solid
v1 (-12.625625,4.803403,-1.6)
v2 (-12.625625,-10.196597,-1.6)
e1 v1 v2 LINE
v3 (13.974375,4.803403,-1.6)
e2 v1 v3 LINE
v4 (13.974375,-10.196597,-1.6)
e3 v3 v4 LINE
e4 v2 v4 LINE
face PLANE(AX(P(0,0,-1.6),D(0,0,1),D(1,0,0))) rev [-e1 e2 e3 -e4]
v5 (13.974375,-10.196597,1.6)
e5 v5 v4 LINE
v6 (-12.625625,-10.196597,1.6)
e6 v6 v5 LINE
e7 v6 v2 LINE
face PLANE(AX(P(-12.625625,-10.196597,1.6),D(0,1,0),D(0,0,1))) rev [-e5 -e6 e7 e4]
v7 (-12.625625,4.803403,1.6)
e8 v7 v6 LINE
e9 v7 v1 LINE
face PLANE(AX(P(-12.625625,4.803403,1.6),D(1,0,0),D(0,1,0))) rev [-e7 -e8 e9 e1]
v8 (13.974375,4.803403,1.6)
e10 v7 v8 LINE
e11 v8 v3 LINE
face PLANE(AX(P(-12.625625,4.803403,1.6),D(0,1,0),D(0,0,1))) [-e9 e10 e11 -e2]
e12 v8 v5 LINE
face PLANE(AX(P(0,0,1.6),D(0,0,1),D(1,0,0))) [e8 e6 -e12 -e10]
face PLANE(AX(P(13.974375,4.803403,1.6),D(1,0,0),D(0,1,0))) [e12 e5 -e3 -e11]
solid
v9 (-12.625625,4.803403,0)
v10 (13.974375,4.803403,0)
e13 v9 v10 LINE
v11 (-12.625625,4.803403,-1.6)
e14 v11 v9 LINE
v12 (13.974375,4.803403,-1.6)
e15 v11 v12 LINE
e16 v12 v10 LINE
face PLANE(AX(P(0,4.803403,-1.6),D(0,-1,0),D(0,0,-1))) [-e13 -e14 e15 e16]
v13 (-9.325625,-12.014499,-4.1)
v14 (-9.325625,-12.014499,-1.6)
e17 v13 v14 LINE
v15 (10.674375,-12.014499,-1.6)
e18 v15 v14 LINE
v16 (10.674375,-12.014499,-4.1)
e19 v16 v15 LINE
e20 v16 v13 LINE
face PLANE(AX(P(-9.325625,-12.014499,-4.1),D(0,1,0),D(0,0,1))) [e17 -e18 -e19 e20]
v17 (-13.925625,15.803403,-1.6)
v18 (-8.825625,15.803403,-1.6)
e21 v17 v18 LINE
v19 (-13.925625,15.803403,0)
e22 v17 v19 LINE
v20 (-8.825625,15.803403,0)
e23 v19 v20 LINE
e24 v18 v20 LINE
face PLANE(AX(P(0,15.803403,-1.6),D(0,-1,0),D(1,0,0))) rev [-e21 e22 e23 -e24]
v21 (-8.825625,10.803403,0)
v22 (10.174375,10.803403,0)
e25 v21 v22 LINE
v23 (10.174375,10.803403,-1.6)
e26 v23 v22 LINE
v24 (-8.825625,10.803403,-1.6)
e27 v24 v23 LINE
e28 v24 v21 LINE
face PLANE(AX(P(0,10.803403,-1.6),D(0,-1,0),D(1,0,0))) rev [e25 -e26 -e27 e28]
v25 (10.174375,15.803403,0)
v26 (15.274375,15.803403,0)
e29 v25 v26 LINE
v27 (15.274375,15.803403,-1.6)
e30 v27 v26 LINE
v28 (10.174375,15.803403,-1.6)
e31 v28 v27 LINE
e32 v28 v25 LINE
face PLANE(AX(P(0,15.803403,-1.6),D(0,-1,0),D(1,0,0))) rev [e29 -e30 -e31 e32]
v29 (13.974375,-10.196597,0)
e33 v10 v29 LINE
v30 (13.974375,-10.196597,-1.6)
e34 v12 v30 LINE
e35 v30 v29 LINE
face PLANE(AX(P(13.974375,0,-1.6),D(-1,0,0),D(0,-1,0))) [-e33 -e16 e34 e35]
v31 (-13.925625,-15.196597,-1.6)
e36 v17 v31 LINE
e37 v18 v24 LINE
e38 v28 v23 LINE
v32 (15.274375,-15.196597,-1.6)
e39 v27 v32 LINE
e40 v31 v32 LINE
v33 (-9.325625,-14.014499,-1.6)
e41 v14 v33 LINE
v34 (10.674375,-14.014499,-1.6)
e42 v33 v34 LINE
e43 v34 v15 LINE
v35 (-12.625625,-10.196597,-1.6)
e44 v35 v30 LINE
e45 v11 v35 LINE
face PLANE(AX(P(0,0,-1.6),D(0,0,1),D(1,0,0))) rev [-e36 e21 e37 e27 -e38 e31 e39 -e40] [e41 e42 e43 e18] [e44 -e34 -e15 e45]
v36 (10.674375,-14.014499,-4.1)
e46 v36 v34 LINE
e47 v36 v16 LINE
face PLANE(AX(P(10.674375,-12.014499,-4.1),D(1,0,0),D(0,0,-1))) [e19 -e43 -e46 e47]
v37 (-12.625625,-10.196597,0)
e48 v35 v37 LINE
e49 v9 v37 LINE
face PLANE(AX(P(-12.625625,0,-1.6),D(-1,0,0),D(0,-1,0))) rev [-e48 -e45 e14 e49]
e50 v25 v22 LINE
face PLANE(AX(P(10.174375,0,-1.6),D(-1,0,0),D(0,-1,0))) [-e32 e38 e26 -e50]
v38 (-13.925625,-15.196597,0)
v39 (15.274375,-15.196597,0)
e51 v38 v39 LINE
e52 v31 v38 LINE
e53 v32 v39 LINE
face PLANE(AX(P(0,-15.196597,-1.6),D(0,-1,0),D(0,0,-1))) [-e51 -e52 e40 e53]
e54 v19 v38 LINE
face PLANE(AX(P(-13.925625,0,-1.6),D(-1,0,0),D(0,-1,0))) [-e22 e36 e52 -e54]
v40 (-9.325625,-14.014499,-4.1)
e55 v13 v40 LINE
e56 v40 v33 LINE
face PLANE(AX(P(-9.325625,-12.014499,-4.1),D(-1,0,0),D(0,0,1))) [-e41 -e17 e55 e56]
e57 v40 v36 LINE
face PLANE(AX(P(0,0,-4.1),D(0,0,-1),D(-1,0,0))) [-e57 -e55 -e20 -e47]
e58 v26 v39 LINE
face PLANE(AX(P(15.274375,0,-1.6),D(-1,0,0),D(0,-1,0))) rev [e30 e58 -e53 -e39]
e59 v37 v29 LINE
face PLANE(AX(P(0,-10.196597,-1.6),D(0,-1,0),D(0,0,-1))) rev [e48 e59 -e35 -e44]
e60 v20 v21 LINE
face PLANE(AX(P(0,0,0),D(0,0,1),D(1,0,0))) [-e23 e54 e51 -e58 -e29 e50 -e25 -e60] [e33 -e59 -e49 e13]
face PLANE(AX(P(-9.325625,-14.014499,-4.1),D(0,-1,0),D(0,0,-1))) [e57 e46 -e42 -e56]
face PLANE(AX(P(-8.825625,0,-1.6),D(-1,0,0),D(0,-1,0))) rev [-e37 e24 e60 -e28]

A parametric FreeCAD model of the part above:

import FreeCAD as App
import Part
import Sketcher
Q = App.Units.Quantity

doc = App.newDocument("Part")
body = doc.addObject("PartDesign::Body", "Body")

sketch1 = doc.addObject("Sketcher::SketchObject", "Sketch")
body.addObject(sketch1)
sketch1.AttachmentSupport = (doc.XY_Plane, [""])
sketch1.MapMode = "FlatFace"
sketch1.addGeometry(Part.LineSegment(App.Vector(-13, 5, 0), App.Vector(-13, -10, 0)), False)
sketch1.addGeometry(Part.LineSegment(App.Vector(-13, -10, 0), App.Vector(14, -10, 0)), False)
sketch1.addGeometry(Part.LineSegment(App.Vector(14, -10, 0), App.Vector(14, 5, 0)), False)
sketch1.addGeometry(Part.LineSegment(App.Vector(14, 5, 0), App.Vector(-13, 5, 0)), False)
sketch1.addConstraint(Sketcher.Constraint("Coincident", 0, 2, 1, 1))
sketch1.addConstraint(Sketcher.Constraint("Coincident", 1, 2, 2, 1))
sketch1.addConstraint(Sketcher.Constraint("Coincident", 2, 2, 3, 1))
sketch1.addConstraint(Sketcher.Constraint("Coincident", 3, 2, 0, 1))
sketch1.addConstraint(Sketcher.Constraint("Vertical", 0))
sketch1.addConstraint(Sketcher.Constraint("Horizontal", 1))
sketch1.addConstraint(Sketcher.Constraint("Vertical", 2))
sketch1.addConstraint(Sketcher.Constraint("Horizontal", 3))
sketch1.addConstraint(Sketcher.Constraint("DistanceY", 0, 2, 0, 1, Q("15 mm")))
sketch1.addConstraint(Sketcher.Constraint("DistanceX", 1, 1, 1, 2, Q("26.6 mm")))
sketch1.addConstraint(Sketcher.Constraint("DistanceX", 0, 2, -1, 1, Q("12.625625 mm")))
sketch1.addConstraint(Sketcher.Constraint("DistanceY", 0, 2, -1, 1, Q("10.196597 mm")))
pad1 = doc.addObject("PartDesign::Pad", "Pad")
body.addObject(pad1)
pad1.Profile = sketch1
pad1.Length = 3.2
pad1.Midplane = True
body2 = doc.addObject("PartDesign::Body", "Body001")

sketch2 = doc.addObject("Sketcher::SketchObject", "Sketch001")
body2.addObject(sketch2)
sketch2.AttachmentSupport = (doc.getObject("XY_Plane001"), [""])
sketch2.MapMode = "FlatFace"
sketch2.addGeometry(Part.LineSegment(App.Vector(-9, 16, 0), App.Vector(-14, 16, 0)), False)
sketch2.addGeometry(Part.LineSegment(App.Vector(-14, 16, 0), App.Vector(-14, -15, 0)), False)
sketch2.addGeometry(Part.LineSegment(App.Vector(-14, -15, 0), App.Vector(15, -15, 0)), False)
sketch2.addGeometry(Part.LineSegment(App.Vector(15, -15, 0), App.Vector(15, 16, 0)), False)
sketch2.addGeometry(Part.LineSegment(App.Vector(15, 16, 0), App.Vector(10, 16, 0)), False)
sketch2.addGeometry(Part.LineSegment(App.Vector(10, 16, 0), App.Vector(10, 11, 0)), False)
sketch2.addGeometry(Part.LineSegment(App.Vector(10, 11, 0), App.Vector(-9, 11, 0)), False)
sketch2.addGeometry(Part.LineSegment(App.Vector(-9, 11, 0), App.Vector(-9, 16, 0)), False)
sketch2.addGeometry(Part.LineSegment(App.Vector(14, -10, 0), App.Vector(-13, -10, 0)), False)
sketch2.addGeometry(Part.LineSegment(App.Vector(-13, -10, 0), App.Vector(-13, 5, 0)), False)
sketch2.addGeometry(Part.LineSegment(App.Vector(-13, 5, 0), App.Vector(14, 5, 0)), False)
sketch2.addGeometry(Part.LineSegment(App.Vector(14, 5, 0), App.Vector(14, -10, 0)), False)
sketch2.addConstraint(Sketcher.Constraint("Coincident", 0, 2, 1, 1))
sketch2.addConstraint(Sketcher.Constraint("Coincident", 1, 2, 2, 1))
sketch2.addConstraint(Sketcher.Constraint("Coincident", 2, 2, 3, 1))
sketch2.addConstraint(Sketcher.Constraint("Coincident", 3, 2, 4, 1))
sketch2.addConstraint(Sketcher.Constraint("Coincident", 4, 2, 5, 1))
sketch2.addConstraint(Sketcher.Constraint("Coincident", 5, 2, 6, 1))
sketch2.addConstraint(Sketcher.Constraint("Coincident", 6, 2, 7, 1))
sketch2.addConstraint(Sketcher.Constraint("Coincident", 7, 2, 0, 1))
sketch2.addConstraint(Sketcher.Constraint("Coincident", 8, 2, 9, 1))
sketch2.addConstraint(Sketcher.Constraint("Coincident", 9, 2, 10, 1))
sketch2.addConstraint(Sketcher.Constraint("Coincident", 10, 2, 11, 1))
sketch2.addConstraint(Sketcher.Constraint("Coincident", 11, 2, 8, 1))
sketch2.addConstraint(Sketcher.Constraint("Horizontal", 0))
sketch2.addConstraint(Sketcher.Constraint("Vertical", 1))
sketch2.addConstraint(Sketcher.Constraint("Horizontal", 2))
sketch2.addConstraint(Sketcher.Constraint("Vertical", 3))
sketch2.addConstraint(Sketcher.Constraint("Horizontal", 4))
sketch2.addConstraint(Sketcher.Constraint("Vertical", 5))
sketch2.addConstraint(Sketcher.Constraint("Horizontal", 6))
sketch2.addConstraint(Sketcher.Constraint("Vertical", 7))
sketch2.addConstraint(Sketcher.Constraint("Horizontal", 8))
sketch2.addConstraint(Sketcher.Constraint("Vertical", 9))
sketch2.addConstraint(Sketcher.Constraint("Horizontal", 10))
sketch2.addConstraint(Sketcher.Constraint("Vertical", 11))
sketch2.addConstraint(Sketcher.Constraint("Horizontal", 0, 2, 3, 2))
sketch2.addConstraint(Sketcher.Constraint("Equal", 0, 4))
sketch2.addConstraint(Sketcher.Constraint("DistanceX", 6, 2, 6, 1, Q("19 mm")))
sketch2.addConstraint(Sketcher.Constraint("DistanceY", 1, 2, 1, 1, Q("31 mm")))
sketch2.addConstraint(Sketcher.Constraint("DistanceY", 5, 2, 5, 1, Q("5 mm")))
sketch2.addConstraint(Sketcher.Constraint("DistanceY", 9, 1, 9, 2, Q("15 mm")))
sketch2.addConstraint(Sketcher.Constraint("DistanceX", 0, 2, 0, 1, Q("5.1 mm")))
sketch2.addConstraint(Sketcher.Constraint("DistanceX", 8, 2, 8, 1, Q("26.6 mm")))
sketch2.addConstraint(Sketcher.Constraint("DistanceY", 1, 2, 8, 2, Q("5 mm")))
sketch2.addConstraint(Sketcher.Constraint("DistanceX", 1, 2, 8, 2, Q("1.3 mm")))
sketch2.addConstraint(Sketcher.Constraint("DistanceX", 0, 2, -1, 1, Q("13.925625 mm")))
sketch2.addConstraint(Sketcher.Constraint("DistanceY", -1, 1, 0, 2, Q("15.803403 mm")))
pad2 = doc.addObject("PartDesign::Pad", "Pad001")
body2.addObject(pad2)
pad2.Profile = sketch2
pad2.Length = 1.6
pad2.Reversed = True

sketch3 = doc.addObject("Sketcher::SketchObject", "Sketch002")
body2.addObject(sketch3)
sketch3.AttachmentSupport = (doc.getObject("XY_Plane001"), [""])
sketch3.MapMode = "FlatFace"
sketch3.addGeometry(Part.LineSegment(App.Vector(-9.3, -12, 0), App.Vector(-9.3, -14, 0)), False)
sketch3.addGeometry(Part.LineSegment(App.Vector(-9.3, -14, 0), App.Vector(10.7, -14, 0)), False)
sketch3.addGeometry(Part.LineSegment(App.Vector(10.7, -14, 0), App.Vector(10.7, -12, 0)), False)
sketch3.addGeometry(Part.LineSegment(App.Vector(10.7, -12, 0), App.Vector(-9.3, -12, 0)), False)
sketch3.addConstraint(Sketcher.Constraint("Coincident", 0, 2, 1, 1))
sketch3.addConstraint(Sketcher.Constraint("Coincident", 1, 2, 2, 1))
sketch3.addConstraint(Sketcher.Constraint("Coincident", 2, 2, 3, 1))
sketch3.addConstraint(Sketcher.Constraint("Coincident", 3, 2, 0, 1))
sketch3.addConstraint(Sketcher.Constraint("Vertical", 0))
sketch3.addConstraint(Sketcher.Constraint("Horizontal", 1))
sketch3.addConstraint(Sketcher.Constraint("Vertical", 2))
sketch3.addConstraint(Sketcher.Constraint("Horizontal", 3))
sketch3.addConstraint(Sketcher.Constraint("DistanceX", 1, 1, 1, 2, Q("20 mm")))
sketch3.addConstraint(Sketcher.Constraint("DistanceY", 0, 2, 0, 1, Q("2 mm")))
sketch3.addConstraint(Sketcher.Constraint("DistanceY", 0, 2, -1, 1, Q("14.014499 mm")))
sketch3.addConstraint(Sketcher.Constraint("DistanceX", 0, 2, -1, 1, Q("9.325625 mm")))
pad3 = doc.addObject("PartDesign::Pad", "Pad002")
body2.addObject(pad3)
pad3.Profile = sketch3
pad3.Length = 4.1
pad3.Reversed = True

doc.recompute()
